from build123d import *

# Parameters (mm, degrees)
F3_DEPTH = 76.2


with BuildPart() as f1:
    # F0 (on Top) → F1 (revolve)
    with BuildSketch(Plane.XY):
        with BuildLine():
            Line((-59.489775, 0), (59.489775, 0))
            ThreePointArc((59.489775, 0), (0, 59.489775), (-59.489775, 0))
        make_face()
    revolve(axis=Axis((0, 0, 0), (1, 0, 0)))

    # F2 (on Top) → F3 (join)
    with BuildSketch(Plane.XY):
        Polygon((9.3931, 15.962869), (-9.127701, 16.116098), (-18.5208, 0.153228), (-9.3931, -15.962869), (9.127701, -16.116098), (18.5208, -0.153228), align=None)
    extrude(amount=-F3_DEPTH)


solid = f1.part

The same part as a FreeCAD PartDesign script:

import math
import FreeCAD as App
import Part
import Sketcher

V = App.Vector

doc = App.newDocument("Part")
params = doc.addObject("Spreadsheet::Sheet", "Params")
for row, (alias, value) in enumerate([
    ("revolution_angle", "360 deg"),
    ("pad1_length", "3 in"),
], start=1):
    params.set(f"A{row}", alias)
    params.set(f"B{row}", "=" + value)
    params.setAlias(f"B{row}", alias)

body = doc.addObject("PartDesign::Body", "Body")

# Sketch on XY plane
sketch1 = body.newObject("Sketcher::SketchObject", "Sketch")
sketch1.AttachmentSupport = (doc.getObject("XY_Plane"), [""])
sketch1.MapMode = "FlatFace"
sketch1.addGeometry([
    Part.LineSegment(V(-59, 0, 0), V(59, 0, 0)),
    Part.ArcOfCircle(Part.Circle(V(0, 0, 0), V(0, 0, 1), 59), math.radians(0), math.radians(180)),
], False)
sketch1.addConstraint([
    Sketcher.Constraint("Coincident", 0, 1, 1, 2),
    Sketcher.Constraint("Coincident", 1, 1, 0, 2),
    Sketcher.Constraint("Horizontal", 0),
    Sketcher.Constraint("Coincident", 1, 3, -1, 1),
    Sketcher.Constraint("PointOnObject", 0, 1, -1),
    Sketcher.Constraint("Radius", 1, 59.489775),
])
revolution = body.newObject("PartDesign::Revolution", "Revolution")
revolution.Profile = sketch1
revolution.ReferenceAxis = (sketch1, ["H_Axis"])
revolution.setExpression("Angle", "Params.revolution_angle")

# Sketch on XY plane
sketch2 = body.newObject("Sketcher::SketchObject", "Sketch001")
sketch2.AttachmentSupport = (doc.getObject("XY_Plane"), [""])
sketch2.MapMode = "FlatFace"
sketch2.addGeometry([
    Part.LineSegment(V(9, 16, 0), V(-9, 16, 0)),  # 0
    Part.LineSegment(V(-9, 16, 0), V(-19, 0, 0)),  # 1
    Part.LineSegment(V(-19, 0, 0), V(-9, -16, 0)),  # 2
    Part.LineSegment(V(-9, -16, 0), V(9, -16, 0)),  # 3
    Part.LineSegment(V(9, -16, 0), V(19, 0, 0)),  # 4
    Part.LineSegment(V(19, 0, 0), V(9, 16, 0)),  # 5
], False)
sketch2.addConstraint([
    Sketcher.Constraint("Coincident", 0, 2, 1, 1),
    Sketcher.Constraint("Coincident", 1, 2, 2, 1),
    Sketcher.Constraint("Coincident", 2, 2, 3, 1),
    Sketcher.Constraint("Coincident", 3, 2, 4, 1),
    Sketcher.Constraint("Coincident", 4, 2, 5, 1),
    Sketcher.Constraint("Coincident", 5, 2, 0, 1),
    Sketcher.Constraint("Symmetric", 0, 2, 3, 2, -1, 1),
    Sketcher.Constraint("Symmetric", 1, 2, 4, 2, -1, 1),
    Sketcher.Constraint("Symmetric", 2, 2, 5, 2, -1, 1),
    Sketcher.Constraint("Equal", 0, 1),
    Sketcher.Constraint("Equal", 1, 2),
    Sketcher.Constraint("DistanceX", 0, 2, -1, 1, 9.127701),
    Sketcher.Constraint("DistanceY", -1, 1, 0, 2, 16.116098),
    Sketcher.Constraint("DistanceX", 1, 2, -1, 1, 18.5208),
    Sketcher.Constraint("DistanceX", 2, 2, -1, 1, 9.3931),
])
pad1 = body.newObject("PartDesign::Pad", "Pad")
pad1.Profile = sketch2
pad1.setExpression("Length", "Params.pad1_length")
pad1.Reversed = True

doc.recompute()
